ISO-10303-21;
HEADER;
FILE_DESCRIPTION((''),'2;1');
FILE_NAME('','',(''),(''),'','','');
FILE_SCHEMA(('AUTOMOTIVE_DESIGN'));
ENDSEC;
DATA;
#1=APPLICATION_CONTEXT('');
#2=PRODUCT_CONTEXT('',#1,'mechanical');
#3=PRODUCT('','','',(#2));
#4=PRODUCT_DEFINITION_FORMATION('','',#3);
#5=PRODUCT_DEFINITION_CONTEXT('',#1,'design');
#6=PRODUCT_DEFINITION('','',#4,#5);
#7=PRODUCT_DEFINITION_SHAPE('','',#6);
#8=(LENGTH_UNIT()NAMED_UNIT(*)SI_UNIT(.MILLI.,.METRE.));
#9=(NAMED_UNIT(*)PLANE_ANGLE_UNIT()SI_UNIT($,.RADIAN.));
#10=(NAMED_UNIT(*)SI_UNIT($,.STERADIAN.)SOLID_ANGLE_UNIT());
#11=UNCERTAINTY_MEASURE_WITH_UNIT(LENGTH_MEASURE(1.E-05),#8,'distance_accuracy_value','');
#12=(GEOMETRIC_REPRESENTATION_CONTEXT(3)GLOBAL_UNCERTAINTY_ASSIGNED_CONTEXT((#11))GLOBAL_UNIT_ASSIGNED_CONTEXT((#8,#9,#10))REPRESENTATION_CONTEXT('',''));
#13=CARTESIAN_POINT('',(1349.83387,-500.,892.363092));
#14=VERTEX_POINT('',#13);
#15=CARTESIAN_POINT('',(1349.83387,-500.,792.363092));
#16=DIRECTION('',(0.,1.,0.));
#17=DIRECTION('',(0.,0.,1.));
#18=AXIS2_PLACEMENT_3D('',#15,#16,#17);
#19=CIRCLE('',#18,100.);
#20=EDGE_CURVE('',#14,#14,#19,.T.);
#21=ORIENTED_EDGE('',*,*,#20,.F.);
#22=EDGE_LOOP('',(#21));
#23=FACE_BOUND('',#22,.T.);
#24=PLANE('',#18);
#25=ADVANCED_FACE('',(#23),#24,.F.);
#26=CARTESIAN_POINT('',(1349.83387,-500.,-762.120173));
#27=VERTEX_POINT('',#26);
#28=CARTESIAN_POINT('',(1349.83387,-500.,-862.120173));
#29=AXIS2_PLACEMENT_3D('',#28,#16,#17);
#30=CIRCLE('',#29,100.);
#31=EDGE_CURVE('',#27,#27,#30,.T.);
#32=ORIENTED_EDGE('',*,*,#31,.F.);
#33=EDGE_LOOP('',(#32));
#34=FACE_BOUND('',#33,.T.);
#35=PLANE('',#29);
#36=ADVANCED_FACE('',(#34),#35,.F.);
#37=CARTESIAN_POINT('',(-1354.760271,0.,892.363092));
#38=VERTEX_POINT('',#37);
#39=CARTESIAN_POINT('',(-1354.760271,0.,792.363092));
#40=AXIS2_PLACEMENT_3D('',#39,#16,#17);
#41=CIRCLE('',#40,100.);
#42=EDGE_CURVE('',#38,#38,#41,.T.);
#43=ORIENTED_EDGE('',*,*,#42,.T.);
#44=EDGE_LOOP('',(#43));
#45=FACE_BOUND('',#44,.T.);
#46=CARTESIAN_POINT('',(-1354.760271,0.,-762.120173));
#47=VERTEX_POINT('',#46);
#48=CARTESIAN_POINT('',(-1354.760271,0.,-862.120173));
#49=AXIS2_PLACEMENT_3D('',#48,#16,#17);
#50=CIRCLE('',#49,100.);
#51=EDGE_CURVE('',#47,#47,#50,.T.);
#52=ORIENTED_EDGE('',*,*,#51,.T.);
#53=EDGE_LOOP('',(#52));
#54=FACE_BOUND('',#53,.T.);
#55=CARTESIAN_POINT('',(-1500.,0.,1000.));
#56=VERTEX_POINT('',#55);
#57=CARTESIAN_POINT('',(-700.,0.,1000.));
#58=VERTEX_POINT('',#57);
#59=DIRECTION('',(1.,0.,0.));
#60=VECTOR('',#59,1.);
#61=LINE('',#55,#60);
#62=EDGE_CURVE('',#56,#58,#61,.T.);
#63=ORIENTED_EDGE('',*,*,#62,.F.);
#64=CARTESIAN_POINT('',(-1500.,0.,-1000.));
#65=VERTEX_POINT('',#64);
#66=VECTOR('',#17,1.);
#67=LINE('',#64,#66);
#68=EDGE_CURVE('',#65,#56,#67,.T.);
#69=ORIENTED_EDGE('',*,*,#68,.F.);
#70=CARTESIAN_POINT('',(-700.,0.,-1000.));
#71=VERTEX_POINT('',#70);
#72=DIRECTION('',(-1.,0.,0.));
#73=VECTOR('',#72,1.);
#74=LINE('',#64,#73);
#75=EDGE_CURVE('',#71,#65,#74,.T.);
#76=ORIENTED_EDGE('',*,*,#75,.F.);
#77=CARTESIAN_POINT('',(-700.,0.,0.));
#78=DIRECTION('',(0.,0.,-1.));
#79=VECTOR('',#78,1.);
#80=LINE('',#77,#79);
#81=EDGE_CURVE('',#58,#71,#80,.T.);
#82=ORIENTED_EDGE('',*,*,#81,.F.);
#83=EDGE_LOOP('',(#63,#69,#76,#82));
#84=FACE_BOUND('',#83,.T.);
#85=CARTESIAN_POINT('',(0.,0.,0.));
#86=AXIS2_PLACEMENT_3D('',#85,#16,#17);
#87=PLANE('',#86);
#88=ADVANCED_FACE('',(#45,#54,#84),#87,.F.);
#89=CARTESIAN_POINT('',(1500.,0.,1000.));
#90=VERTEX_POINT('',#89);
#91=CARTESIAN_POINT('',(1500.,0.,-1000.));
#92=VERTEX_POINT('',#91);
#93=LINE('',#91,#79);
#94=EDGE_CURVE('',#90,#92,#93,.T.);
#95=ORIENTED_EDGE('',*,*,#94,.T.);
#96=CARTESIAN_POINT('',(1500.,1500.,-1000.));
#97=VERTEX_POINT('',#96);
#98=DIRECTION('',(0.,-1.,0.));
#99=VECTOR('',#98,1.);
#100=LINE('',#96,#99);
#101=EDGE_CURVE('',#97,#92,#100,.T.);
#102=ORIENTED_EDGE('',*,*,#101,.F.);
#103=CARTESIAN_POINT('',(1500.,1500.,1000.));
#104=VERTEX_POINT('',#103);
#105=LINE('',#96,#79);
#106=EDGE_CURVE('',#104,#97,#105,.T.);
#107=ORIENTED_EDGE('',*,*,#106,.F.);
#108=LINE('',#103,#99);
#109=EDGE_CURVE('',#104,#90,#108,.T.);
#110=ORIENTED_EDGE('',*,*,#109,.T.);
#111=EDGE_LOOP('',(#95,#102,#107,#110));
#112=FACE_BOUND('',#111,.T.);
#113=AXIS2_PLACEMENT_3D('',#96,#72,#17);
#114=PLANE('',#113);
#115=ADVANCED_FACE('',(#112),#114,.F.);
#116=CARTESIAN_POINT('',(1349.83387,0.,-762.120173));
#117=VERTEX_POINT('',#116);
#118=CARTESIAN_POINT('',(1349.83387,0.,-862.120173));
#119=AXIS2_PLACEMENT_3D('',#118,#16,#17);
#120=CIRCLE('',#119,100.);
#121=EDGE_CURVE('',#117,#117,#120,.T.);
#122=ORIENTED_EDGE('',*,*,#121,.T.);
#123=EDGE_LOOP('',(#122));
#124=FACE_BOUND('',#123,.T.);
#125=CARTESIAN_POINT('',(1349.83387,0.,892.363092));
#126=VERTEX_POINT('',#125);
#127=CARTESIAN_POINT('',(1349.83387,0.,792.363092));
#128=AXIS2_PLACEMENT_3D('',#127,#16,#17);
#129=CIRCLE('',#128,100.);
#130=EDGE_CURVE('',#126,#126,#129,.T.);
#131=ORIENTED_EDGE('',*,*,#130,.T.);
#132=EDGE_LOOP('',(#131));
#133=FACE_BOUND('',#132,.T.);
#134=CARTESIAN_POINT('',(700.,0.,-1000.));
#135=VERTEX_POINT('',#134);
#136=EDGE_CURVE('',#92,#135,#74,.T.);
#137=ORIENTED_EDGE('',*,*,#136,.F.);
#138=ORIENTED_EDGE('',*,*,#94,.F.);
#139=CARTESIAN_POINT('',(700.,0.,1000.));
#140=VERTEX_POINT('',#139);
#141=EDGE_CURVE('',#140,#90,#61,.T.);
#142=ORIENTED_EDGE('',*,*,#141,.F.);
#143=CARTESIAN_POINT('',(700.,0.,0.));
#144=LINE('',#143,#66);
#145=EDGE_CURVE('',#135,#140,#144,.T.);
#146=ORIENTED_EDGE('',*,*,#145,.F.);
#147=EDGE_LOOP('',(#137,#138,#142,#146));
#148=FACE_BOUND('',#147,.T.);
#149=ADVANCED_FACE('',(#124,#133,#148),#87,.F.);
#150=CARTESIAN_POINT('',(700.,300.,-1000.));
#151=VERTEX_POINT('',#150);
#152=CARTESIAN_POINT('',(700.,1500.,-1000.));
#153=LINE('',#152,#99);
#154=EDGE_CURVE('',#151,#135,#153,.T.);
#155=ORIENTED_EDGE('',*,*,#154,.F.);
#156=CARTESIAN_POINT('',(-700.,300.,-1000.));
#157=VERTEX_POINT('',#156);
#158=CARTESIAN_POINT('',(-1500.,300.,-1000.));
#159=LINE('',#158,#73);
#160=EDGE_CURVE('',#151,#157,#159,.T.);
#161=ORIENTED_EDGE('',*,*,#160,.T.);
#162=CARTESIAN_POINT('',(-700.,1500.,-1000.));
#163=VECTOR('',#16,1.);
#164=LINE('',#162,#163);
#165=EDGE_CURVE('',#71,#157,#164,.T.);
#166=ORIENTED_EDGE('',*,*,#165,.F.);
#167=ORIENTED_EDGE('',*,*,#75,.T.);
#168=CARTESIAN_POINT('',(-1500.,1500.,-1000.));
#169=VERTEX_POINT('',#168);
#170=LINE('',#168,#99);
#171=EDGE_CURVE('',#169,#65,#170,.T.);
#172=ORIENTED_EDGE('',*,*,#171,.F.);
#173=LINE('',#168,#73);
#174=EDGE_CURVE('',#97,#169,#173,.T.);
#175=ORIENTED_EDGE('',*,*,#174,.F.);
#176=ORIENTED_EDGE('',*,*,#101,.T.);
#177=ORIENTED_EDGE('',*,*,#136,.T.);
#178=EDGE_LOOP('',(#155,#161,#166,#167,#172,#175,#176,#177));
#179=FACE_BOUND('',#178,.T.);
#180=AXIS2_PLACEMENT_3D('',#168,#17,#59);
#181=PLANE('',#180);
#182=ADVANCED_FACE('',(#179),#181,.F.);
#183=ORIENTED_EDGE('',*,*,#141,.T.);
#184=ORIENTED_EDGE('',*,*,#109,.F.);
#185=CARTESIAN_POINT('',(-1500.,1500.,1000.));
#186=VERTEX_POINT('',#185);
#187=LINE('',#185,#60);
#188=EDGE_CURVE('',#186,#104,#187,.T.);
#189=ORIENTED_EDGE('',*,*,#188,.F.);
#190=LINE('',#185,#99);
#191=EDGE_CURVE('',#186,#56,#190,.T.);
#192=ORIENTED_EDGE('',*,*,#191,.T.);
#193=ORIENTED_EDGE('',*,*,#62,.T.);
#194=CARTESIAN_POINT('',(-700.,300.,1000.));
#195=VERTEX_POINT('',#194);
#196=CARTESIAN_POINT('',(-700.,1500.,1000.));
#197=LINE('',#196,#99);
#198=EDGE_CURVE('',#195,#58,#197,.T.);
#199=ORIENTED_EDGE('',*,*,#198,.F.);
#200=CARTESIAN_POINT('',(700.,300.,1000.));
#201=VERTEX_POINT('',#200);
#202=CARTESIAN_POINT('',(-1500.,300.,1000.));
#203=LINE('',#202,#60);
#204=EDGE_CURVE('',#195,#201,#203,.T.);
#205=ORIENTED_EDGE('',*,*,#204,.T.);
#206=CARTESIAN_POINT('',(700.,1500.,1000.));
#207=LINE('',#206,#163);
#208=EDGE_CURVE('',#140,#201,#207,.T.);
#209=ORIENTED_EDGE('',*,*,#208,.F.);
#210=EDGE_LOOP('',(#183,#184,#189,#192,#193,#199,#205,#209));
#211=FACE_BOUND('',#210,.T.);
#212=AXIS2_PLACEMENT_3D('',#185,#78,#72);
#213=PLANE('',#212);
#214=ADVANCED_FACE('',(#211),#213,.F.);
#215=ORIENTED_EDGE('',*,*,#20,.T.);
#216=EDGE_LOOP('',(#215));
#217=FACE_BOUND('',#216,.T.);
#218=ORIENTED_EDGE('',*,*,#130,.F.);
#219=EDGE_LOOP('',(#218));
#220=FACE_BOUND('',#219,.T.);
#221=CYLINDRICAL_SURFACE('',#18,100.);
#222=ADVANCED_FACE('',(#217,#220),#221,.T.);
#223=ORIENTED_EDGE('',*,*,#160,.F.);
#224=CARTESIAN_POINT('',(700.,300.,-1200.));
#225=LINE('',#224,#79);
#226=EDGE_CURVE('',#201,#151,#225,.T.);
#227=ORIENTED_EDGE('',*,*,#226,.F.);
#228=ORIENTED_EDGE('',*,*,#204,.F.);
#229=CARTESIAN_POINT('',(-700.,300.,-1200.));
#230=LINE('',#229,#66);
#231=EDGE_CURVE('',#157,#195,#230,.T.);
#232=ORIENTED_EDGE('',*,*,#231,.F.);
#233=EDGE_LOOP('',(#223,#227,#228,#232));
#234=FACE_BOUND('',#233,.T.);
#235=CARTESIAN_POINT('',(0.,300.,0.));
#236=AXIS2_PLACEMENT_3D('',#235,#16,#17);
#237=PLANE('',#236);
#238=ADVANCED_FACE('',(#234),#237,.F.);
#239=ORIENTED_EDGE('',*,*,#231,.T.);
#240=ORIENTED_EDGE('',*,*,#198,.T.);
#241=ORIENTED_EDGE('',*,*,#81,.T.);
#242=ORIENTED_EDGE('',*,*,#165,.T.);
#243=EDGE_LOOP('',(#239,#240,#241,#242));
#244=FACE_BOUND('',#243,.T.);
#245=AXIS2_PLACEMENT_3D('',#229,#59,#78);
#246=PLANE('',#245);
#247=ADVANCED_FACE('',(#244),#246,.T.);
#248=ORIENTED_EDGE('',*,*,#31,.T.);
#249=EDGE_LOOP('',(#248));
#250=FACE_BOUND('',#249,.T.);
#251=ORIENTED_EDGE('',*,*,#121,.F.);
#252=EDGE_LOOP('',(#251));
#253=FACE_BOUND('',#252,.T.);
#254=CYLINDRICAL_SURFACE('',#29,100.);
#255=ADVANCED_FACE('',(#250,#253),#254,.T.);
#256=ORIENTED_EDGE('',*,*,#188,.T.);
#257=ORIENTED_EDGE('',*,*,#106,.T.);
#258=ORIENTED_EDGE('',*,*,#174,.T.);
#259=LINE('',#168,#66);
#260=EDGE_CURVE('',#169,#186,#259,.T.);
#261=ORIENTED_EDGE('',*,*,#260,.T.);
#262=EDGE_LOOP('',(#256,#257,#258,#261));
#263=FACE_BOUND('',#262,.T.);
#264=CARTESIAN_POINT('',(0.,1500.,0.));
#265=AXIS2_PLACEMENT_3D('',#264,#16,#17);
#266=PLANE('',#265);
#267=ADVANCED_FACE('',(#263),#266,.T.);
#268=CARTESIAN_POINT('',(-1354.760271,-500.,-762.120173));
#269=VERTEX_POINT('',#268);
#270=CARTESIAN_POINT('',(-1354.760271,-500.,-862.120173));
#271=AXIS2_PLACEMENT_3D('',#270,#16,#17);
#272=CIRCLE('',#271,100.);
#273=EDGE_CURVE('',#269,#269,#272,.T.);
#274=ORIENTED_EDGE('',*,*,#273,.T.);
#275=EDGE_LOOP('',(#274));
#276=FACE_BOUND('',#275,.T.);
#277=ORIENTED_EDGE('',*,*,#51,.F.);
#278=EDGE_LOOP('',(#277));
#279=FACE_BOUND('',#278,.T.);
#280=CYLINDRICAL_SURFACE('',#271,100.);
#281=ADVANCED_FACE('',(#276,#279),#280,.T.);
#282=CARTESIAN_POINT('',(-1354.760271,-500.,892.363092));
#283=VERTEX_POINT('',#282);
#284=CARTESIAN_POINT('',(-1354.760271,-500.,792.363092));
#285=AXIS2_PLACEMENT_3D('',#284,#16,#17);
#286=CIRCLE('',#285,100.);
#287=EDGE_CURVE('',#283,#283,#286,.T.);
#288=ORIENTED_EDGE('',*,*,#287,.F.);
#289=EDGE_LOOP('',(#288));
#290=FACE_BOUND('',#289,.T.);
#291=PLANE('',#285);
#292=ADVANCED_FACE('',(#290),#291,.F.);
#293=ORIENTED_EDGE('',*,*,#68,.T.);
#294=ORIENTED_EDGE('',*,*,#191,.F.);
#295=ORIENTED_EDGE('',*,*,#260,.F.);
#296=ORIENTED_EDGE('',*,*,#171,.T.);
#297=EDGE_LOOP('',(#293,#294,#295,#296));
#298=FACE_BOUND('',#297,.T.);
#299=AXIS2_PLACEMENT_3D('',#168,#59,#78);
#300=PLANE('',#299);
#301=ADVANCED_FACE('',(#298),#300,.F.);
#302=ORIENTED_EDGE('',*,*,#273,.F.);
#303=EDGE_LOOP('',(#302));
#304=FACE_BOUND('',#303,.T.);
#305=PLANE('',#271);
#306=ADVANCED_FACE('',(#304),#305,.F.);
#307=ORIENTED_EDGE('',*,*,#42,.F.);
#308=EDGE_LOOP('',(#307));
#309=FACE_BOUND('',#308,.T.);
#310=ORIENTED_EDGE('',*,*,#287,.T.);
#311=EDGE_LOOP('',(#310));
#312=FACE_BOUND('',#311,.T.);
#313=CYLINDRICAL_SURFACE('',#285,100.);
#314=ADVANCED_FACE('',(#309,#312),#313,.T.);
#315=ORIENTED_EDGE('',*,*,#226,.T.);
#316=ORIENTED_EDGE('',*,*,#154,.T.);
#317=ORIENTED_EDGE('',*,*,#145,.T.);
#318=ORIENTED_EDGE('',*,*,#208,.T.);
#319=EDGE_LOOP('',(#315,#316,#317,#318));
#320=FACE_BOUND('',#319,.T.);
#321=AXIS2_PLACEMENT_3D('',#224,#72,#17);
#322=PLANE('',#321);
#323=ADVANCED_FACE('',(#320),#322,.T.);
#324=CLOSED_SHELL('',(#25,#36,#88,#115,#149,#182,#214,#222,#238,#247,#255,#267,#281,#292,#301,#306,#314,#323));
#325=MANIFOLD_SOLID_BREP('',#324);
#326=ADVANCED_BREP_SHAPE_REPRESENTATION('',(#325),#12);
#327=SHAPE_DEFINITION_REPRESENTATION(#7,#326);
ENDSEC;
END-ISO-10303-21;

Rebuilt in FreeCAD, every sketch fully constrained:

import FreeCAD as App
import Part
import Sketcher

V = App.Vector


def add_polygon(sketch, points):
    """Adds a closed chain of lines whose ends are joined by coincident constraints."""
    first, n = sketch.GeometryCount, len(points)
    for a, b in zip(points, points[1:] + points[:1]):
        sketch.addGeometry(Part.LineSegment(App.Vector(*a, 0), App.Vector(*b, 0)), False)
    for i in range(n):
        sketch.addConstraint(Sketcher.Constraint("Coincident", first + i, 2, first + (i + 1) % n, 1))

doc = App.newDocument("Part")
body = doc.addObject("PartDesign::Body", "Body")

# Sketch on XZ plane
sketch1 = doc.addObject("Sketcher::SketchObject", "Sketch")
body.addObject(sketch1)
sketch1.AttachmentSupport = (doc.XZ_Plane, [""])
sketch1.MapMode = "FlatFace"
add_polygon(sketch1, [(-1500, -1000), (-1500, 1000), (1500, 1000), (1500, -1000)])  # lines 0-3
sketch1.addConstraint(Sketcher.Constraint("Vertical", 0))
sketch1.addConstraint(Sketcher.Constraint("Horizontal", 1))
sketch1.addConstraint(Sketcher.Constraint("Vertical", 2))
sketch1.addConstraint(Sketcher.Constraint("Horizontal", 3))
sketch1.addConstraint(Sketcher.Constraint("Symmetric", 0, 2, 2, 2, -1, 1))
sketch1.addConstraint(Sketcher.Constraint("DistanceX", 1, 1, 1, 2, 3000.0))
sketch1.addConstraint(Sketcher.Constraint("DistanceY", 0, 1, 0, 2, 2000.0))
pad1 = doc.addObject("PartDesign::Pad", "Pad")
body.addObject(pad1)
pad1.Profile = sketch1
pad1.Length = 1500
pad1.Reversed = True

# Sketch on XZ plane
sketch2 = doc.addObject("Sketcher::SketchObject", "Sketch001")
body.addObject(sketch2)
sketch2.AttachmentSupport = (doc.XZ_Plane, [""])
sketch2.MapMode = "FlatFace"
add_polygon(sketch2, [(-700, -1200), (-700, 1200), (700, 1200), (700, -1200)])  # lines 0-3
sketch2.addConstraint(Sketcher.Constraint("Vertical", 0))
sketch2.addConstraint(Sketcher.Constraint("Horizontal", 1))
sketch2.addConstraint(Sketcher.Constraint("Vertical", 2))
sketch2.addConstraint(Sketcher.Constraint("Horizontal", 3))
sketch2.addConstraint(Sketcher.Constraint("Symmetric", 0, 2, 2, 2, -1, 1))
sketch2.addConstraint(Sketcher.Constraint("DistanceX", 1, 1, 1, 2, 1400.0))
sketch2.addConstraint(Sketcher.Constraint("DistanceY", 0, 1, 0, 2, 2400.0))
pocket1 = doc.addObject("PartDesign::Pocket", "Pocket")
body.addObject(pocket1)
pocket1.Profile = sketch2
pocket1.Length = 300

# Sketch on XZ plane
sketch3 = doc.addObject("Sketcher::SketchObject", "Sketch002")
body.addObject(sketch3)
sketch3.AttachmentSupport = (doc.XZ_Plane, [""])
sketch3.MapMode = "FlatFace"
sketch3.addGeometry(Part.Circle(V(-1355, -862, 0), V(0, 0, 1), 100), False)
sketch3.addGeometry(Part.Circle(V(1350, -862, 0), V(0, 0, 1), 100), False)
sketch3.addGeometry(Part.Circle(V(1350, 792, 0), V(0, 0, 1), 100), False)
sketch3.addGeometry(Part.Circle(V(-1355, 792, 0), V(0, 0, 1), 100), False)
sketch3.addConstraint(Sketcher.Constraint("Equal", 0, 1))
sketch3.addConstraint(Sketcher.Constraint("Equal", 1, 2))
sketch3.addConstraint(Sketcher.Constraint("Equal", 2, 3))
sketch3.addConstraint(Sketcher.Constraint("Horizontal", 0, 3, 1, 3))
sketch3.addConstraint(Sketcher.Constraint("Horizontal", 2, 3, 3, 3))
sketch3.addConstraint(Sketcher.Constraint("Vertical", 1, 3, 2, 3))
sketch3.addConstraint(Sketcher.Constraint("Vertical", 0, 3, 3, 3))
sketch3.addConstraint(Sketcher.Constraint("Diameter", 0, 200.0))
sketch3.addConstraint(Sketcher.Constraint("DistanceX", 0, 3, -1, 1, 1354.760271))
sketch3.addConstraint(Sketcher.Constraint("DistanceX", -1, 1, 1, 3, 1349.83387))
sketch3.addConstraint(Sketcher.Constraint("DistanceY", -1, 1, 2, 3, 792.363092))
sketch3.addConstraint(Sketcher.Constraint("DistanceY", 0, 3, -1, 1, 862.120173))
pad2 = doc.addObject("PartDesign::Pad", "Pad001")
body.addObject(pad2)
pad2.Profile = sketch3
pad2.Length = 500

doc.recompute()
